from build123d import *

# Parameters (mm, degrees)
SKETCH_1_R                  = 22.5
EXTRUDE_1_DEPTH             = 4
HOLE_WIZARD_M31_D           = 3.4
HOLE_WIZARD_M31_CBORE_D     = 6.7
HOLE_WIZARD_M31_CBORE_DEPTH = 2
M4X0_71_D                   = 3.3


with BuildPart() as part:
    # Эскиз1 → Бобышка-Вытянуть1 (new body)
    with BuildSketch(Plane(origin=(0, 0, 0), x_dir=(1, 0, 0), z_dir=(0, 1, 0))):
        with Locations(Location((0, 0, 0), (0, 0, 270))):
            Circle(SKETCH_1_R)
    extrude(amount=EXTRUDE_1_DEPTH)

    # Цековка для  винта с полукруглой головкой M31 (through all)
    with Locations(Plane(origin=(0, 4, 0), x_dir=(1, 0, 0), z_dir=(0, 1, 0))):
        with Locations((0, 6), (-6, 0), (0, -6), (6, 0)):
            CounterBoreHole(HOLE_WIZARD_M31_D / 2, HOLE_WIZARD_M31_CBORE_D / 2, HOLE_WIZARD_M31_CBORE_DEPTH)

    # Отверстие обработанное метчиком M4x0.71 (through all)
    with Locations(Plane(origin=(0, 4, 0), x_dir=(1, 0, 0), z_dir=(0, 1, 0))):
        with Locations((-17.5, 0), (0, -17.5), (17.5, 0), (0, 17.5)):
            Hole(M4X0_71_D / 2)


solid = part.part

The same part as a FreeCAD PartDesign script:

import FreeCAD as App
import Part
import Sketcher
from FreeCAD import Vector
Q = App.Units.Quantity

doc = App.newDocument("Part")
body = doc.addObject("PartDesign::Body", "Body")

sketch1 = body.newObject("Sketcher::SketchObject", "Sketch")
sketch1.AttachmentSupport = (doc.getObject("XZ_Plane"), [""])
sketch1.MapMode = "FlatFace"
sketch1.addGeometry(Part.Circle(Vector(0, 0, 0), Vector(0, 0, 1), 22), False)
sketch1.addConstraint([
    Sketcher.Constraint("Coincident", 0, 3, -1, 1),
    Sketcher.Constraint("Diameter", 0, Q("45 mm")),
])
pad1 = body.newObject("PartDesign::Pad", "Pad")
pad1.Profile = sketch1
pad1.Length = 4
pad1.Reversed = True

sketch2 = body.newObject("Sketcher::SketchObject", "Sketch001")
sketch2.AttachmentSupport = (doc.getObject("XZ_Plane"), [""])
sketch2.MapMode = "FlatFace"
sketch2.AttachmentOffset = App.Placement(Vector(0, 0, -4), App.Rotation())
sketch2.addGeometry([
    Part.Circle(Vector(0, -6, 0), Vector(0, 0, 1), 1.7),
    Part.Circle(Vector(-6, 0, 0), Vector(0, 0, 1), 1.7),
    Part.Circle(Vector(0, 6, 0), Vector(0, 0, 1), 1.7),
    Part.Circle(Vector(6, 0, 0), Vector(0, 0, 1), 1.7),
], False)
sketch2.addConstraint([
    Sketcher.Constraint("Equal", 0, 1),
    Sketcher.Constraint("Equal", 1, 2),
    Sketcher.Constraint("Equal", 2, 3),
    Sketcher.Constraint("Symmetric", 0, 3, 2, 3, -1, 1),
    Sketcher.Constraint("Symmetric", 1, 3, 3, 3, -1, 1),
    Sketcher.Constraint("PointOnObject", 0, 3, -2),
    Sketcher.Constraint("PointOnObject", 1, 3, -1),
    Sketcher.Constraint("Diameter", 0, Q("3.4 mm")),
    Sketcher.Constraint("DistanceY", 0, 3, -1, 1, Q("6 mm")),
    Sketcher.Constraint("DistanceX", 1, 3, -1, 1, Q("6 mm")),
])
doc.recompute()
hole = body.newObject("PartDesign::Hole", "Hole")
hole.Profile = sketch2
hole.ThreadType = "None"
hole.Diameter = 3.4
hole.DepthType = "ThroughAll"
hole.HoleCutType = "Counterbore"
hole.HoleCutDiameter = 6.7
hole.HoleCutDepth = 2
hole.Reversed = True

sketch3 = body.newObject("Sketcher::SketchObject", "Sketch002")
sketch3.AttachmentSupport = (doc.getObject("XZ_Plane"), [""])
sketch3.MapMode = "FlatFace"
sketch3.AttachmentOffset = App.Placement(Vector(0, 0, -4), App.Rotation())
sketch3.addGeometry([
    Part.Circle(Vector(-17.5, 0, 0), Vector(0, 0, 1), 1.6),
    Part.Circle(Vector(0, 17.5, 0), Vector(0, 0, 1), 1.6),
    Part.Circle(Vector(17.5, 0, 0), Vector(0, 0, 1), 1.6),
    Part.Circle(Vector(0, -17.5, 0), Vector(0, 0, 1), 1.6),
], False)
sketch3.addConstraint([
    Sketcher.Constraint("Equal", 0, 1),
    Sketcher.Constraint("Equal", 1, 2),
    Sketcher.Constraint("Equal", 2, 3),
    Sketcher.Constraint("Symmetric", 0, 3, 2, 3, -1, 1),
    Sketcher.Constraint("Symmetric", 1, 3, 3, 3, -1, 1),
    Sketcher.Constraint("PointOnObject", 0, 3, -1),
    Sketcher.Constraint("PointOnObject", 1, 3, -2),
    Sketcher.Constraint("Diameter", 0, Q("3.3 mm")),
    Sketcher.Constraint("DistanceX", 0, 3, 2, 3, Q("35 mm")),
    Sketcher.Constraint("DistanceY", 3, 3, 1, 3, Q("35 mm")),
])
doc.recompute()
hole2 = body.newObject("PartDesign::Hole", "Hole001")
hole2.Profile = sketch3
hole2.ThreadType = "None"
hole2.Diameter = 3.3
hole2.DepthType = "ThroughAll"
hole2.Reversed = True

doc.recompute()
